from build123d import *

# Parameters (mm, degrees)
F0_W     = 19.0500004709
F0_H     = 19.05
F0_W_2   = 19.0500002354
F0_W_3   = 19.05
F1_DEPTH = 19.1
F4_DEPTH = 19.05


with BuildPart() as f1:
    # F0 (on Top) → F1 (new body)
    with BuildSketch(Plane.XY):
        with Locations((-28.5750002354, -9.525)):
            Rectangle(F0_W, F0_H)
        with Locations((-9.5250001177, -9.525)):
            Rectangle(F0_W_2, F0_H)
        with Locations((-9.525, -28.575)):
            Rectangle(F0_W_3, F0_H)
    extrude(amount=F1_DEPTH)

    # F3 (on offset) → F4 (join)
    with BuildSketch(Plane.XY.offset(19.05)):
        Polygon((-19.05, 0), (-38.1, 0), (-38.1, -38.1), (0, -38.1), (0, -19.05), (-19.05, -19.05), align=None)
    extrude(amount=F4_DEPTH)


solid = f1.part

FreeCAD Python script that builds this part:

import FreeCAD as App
import Part
import Sketcher
Q = App.Units.Quantity


def add_polygon(sketch, points):
    """Adds a closed chain of lines whose ends are joined by coincident constraints."""
    first, n = sketch.GeometryCount, len(points)
    for a, b in zip(points, points[1:] + points[:1]):
        sketch.addGeometry(Part.LineSegment(App.Vector(*a, 0), App.Vector(*b, 0)), False)
    for i in range(n):
        sketch.addConstraint(Sketcher.Constraint("Coincident", first + i, 2, first + (i + 1) % n, 1))

doc = App.newDocument("Part")
params = doc.addObject("Spreadsheet::Sheet", "Params")
for row, (alias, value) in enumerate([
    ("sketch1_width", "1.5 in"),
    ("pad1_length", "19.1 mm"),
    ("sketch2_width", "1.5 in"),
    ("pad2_length", "0.75 in"),
], start=1):
    params.set(f"A{row}", alias)
    params.set(f"B{row}", "=" + value)
    params.setAlias(f"B{row}", alias)

body = doc.addObject("PartDesign::Body", "Body")

# Sketch on XY plane
sketch1 = body.newObject("Sketcher::SketchObject", "Sketch")
sketch1.AttachmentSupport = (doc.getObject("XY_Plane"), [""])
sketch1.MapMode = "FlatFace"
add_polygon(sketch1, [(-38, 0), (-38, -19), (-19, -19), (-19, -38), (0, -38), (0, 0)])  # lines 0-5
sketch1.addConstraint(Sketcher.Constraint("Vertical", 0))
sketch1.addConstraint(Sketcher.Constraint("Horizontal", 1))
sketch1.addConstraint(Sketcher.Constraint("Vertical", 2))
sketch1.addConstraint(Sketcher.Constraint("Horizontal", 3))
sketch1.addConstraint(Sketcher.Constraint("Vertical", 4))
sketch1.addConstraint(Sketcher.Constraint("Horizontal", 5))
sketch1.addConstraint(Sketcher.Constraint("Coincident", 4, 2, -1, 1))
sketch1.addConstraint(Sketcher.Constraint("Equal", 1, 3))
sketch1.addConstraint(Sketcher.Constraint("Equal", 3, 0))
sketch1.addConstraint(Sketcher.Constraint("Equal", 0, 2))
sketch1.addConstraint(Sketcher.Constraint("DistanceX", 5, 2, 5, 1, Q("1.5 in")))
sketch1.setExpression("Constraints[16]", "Params.sketch1_width")
pad1 = body.newObject("PartDesign::Pad", "Pad")
pad1.Profile = sketch1
pad1.setExpression("Length", "Params.pad1_length")

# Sketch on XY plane
sketch2 = body.newObject("Sketcher::SketchObject", "Sketch001")
sketch2.AttachmentSupport = (doc.getObject("XY_Plane"), [""])
sketch2.MapMode = "FlatFace"
sketch2.AttachmentOffset = App.Placement(App.Vector(0, 0, 0.75 * 25.4), App.Rotation())
add_polygon(sketch2, [(-19, 0), (-38, 0), (-38, -38), (0, -38), (0, -19), (-19, -19)])  # lines 0-5
sketch2.addConstraint(Sketcher.Constraint("Horizontal", 0))
sketch2.addConstraint(Sketcher.Constraint("Vertical", 1))
sketch2.addConstraint(Sketcher.Constraint("Horizontal", 2))
sketch2.addConstraint(Sketcher.Constraint("Vertical", 3))
sketch2.addConstraint(Sketcher.Constraint("Horizontal", 4))
sketch2.addConstraint(Sketcher.Constraint("Vertical", 5))
sketch2.addConstraint(Sketcher.Constraint("PointOnObject", 0, 2, -1))
sketch2.addConstraint(Sketcher.Constraint("PointOnObject", 2, 2, -2))
sketch2.addConstraint(Sketcher.Constraint("Equal", 0, 4))
sketch2.addConstraint(Sketcher.Constraint("Equal", 2, 1))
sketch2.addConstraint(Sketcher.Constraint("Equal", 4, 3))
sketch2.addConstraint(Sketcher.Constraint("DistanceX", 2, 1, 2, 2, Q("1.5 in")))
sketch2.setExpression("Constraints[17]", "Params.sketch2_width")
pad2 = body.newObject("PartDesign::Pad", "Pad001")
pad2.Profile = sketch2
pad2.setExpression("Length", "Params.pad2_length")

doc.recompute()
